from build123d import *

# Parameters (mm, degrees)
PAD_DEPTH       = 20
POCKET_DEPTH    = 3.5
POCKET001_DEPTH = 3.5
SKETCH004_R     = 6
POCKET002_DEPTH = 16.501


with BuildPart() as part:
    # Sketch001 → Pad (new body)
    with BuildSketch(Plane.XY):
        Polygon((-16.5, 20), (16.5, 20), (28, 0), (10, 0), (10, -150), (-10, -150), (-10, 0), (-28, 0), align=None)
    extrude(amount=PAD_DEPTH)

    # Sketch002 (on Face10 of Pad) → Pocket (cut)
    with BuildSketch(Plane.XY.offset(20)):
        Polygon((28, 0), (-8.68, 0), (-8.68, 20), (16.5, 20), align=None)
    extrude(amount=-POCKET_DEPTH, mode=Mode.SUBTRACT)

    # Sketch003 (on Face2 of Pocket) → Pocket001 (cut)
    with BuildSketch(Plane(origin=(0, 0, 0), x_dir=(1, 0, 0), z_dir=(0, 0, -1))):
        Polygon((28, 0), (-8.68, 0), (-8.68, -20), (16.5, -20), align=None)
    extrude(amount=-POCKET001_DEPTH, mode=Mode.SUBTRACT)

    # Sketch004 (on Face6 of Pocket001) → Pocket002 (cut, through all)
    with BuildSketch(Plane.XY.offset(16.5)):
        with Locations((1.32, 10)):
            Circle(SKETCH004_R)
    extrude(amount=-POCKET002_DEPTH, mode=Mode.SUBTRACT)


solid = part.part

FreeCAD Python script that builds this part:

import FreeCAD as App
import Part
import Sketcher

V = App.Vector


def add_polygon(sketch, points):
    """Adds a closed chain of lines whose ends are joined by coincident constraints."""
    first, n = sketch.GeometryCount, len(points)
    for a, b in zip(points, points[1:] + points[:1]):
        sketch.addGeometry(Part.LineSegment(App.Vector(*a, 0), App.Vector(*b, 0)), False)
    for i in range(n):
        sketch.addConstraint(Sketcher.Constraint("Coincident", first + i, 2, first + (i + 1) % n, 1))

doc = App.newDocument("Part")
body = doc.addObject("PartDesign::Body", "Body")

# Sketch on XY plane
sketch1 = body.newObject("Sketcher::SketchObject", "Sketch")
sketch1.AttachmentSupport = (doc.getObject("XY_Plane"), [""])
sketch1.MapMode = "FlatFace"
add_polygon(sketch1, [(16, 20), (-16, 20), (-28, 0), (-10, 0), (-10, -150), (10, -150), (10, 0), (28, 0)])  # lines 0-7
sketch1.addConstraint([
    Sketcher.Constraint("Horizontal", 0),
    Sketcher.Constraint("Horizontal", 2),
    Sketcher.Constraint("Vertical", 3),
    Sketcher.Constraint("Horizontal", 4),
    Sketcher.Constraint("Vertical", 5),
    Sketcher.Constraint("Horizontal", 6),
    Sketcher.Constraint("Symmetric", 2, 2, 5, 2, -1, 1),
    Sketcher.Constraint("Symmetric", 1, 2, 6, 2, -2),
    Sketcher.Constraint("Equal", 1, 7),
    Sketcher.Constraint("DistanceX", 0, 2, 0, 1, 33.0),
    Sketcher.Constraint("DistanceX", 2, 1, 2, 2, 18.0),
    Sketcher.Constraint("DistanceX", 4, 1, 4, 2, 20.0),
    Sketcher.Constraint("DistanceY", 3, 2, 3, 1, 150.0),
    Sketcher.Constraint("DistanceY", -1, 1, 0, 2, 20.0),
])
pad1 = body.newObject("PartDesign::Pad", "Pad")
pad1.Profile = sketch1
pad1.Length = 20

# Sketch on XY plane
sketch2 = body.newObject("Sketcher::SketchObject", "Sketch001")
sketch2.AttachmentSupport = (doc.getObject("XY_Plane"), [""])
sketch2.MapMode = "FlatFace"
sketch2.AttachmentOffset = App.Placement(V(0, 0, 20), App.Rotation())
add_polygon(sketch2, [(-9, 0), (28, 0), (16, 20), (-9, 20)])  # lines 0-3
sketch2.addConstraint([
    Sketcher.Constraint("Horizontal", 0),
    Sketcher.Constraint("Horizontal", 2),
    Sketcher.Constraint("Vertical", 3),
    Sketcher.Constraint("PointOnObject", 0, 2, -1),
    Sketcher.Constraint("DistanceY", 3, 2, 3, 1, 20.0),
    Sketcher.Constraint("DistanceX", -1, 1, 0, 2, 28.0),
    Sketcher.Constraint("DistanceX", 0, 1, 0, 2, 36.68),
    Sketcher.Constraint("DistanceX", 2, 2, 2, 1, 25.18),
])
pocket1 = body.newObject("PartDesign::Pocket", "Pocket")
pocket1.Profile = sketch2
pocket1.Length = 3.5

# Sketch on XY plane
sketch3 = body.newObject("Sketcher::SketchObject", "Sketch002")
sketch3.AttachmentSupport = (doc.getObject("XY_Plane"), [""])
sketch3.MapMode = "FlatFace"
add_polygon(sketch3, [(28, 0), (-9, 0), (-9, 20), (16, 20)])  # lines 0-3
sketch3.addConstraint([
    Sketcher.Constraint("Horizontal", 0),
    Sketcher.Constraint("Vertical", 1),
    Sketcher.Constraint("Horizontal", 2),
    Sketcher.Constraint("PointOnObject", 0, 2, -1),
    Sketcher.Constraint("DistanceY", 1, 1, 1, 2, 20.0),
    Sketcher.Constraint("DistanceX", -1, 1, 3, 2, 28.0),
    Sketcher.Constraint("DistanceX", 0, 2, 0, 1, 36.68),
    Sketcher.Constraint("DistanceX", 2, 1, 2, 2, 25.18),
])
pocket2 = body.newObject("PartDesign::Pocket", "Pocket001")
pocket2.Profile = sketch3
pocket2.Length = 3.5
pocket2.Reversed = True

# Sketch on XY plane
sketch4 = body.newObject("Sketcher::SketchObject", "Sketch003")
sketch4.AttachmentSupport = (doc.getObject("XY_Plane"), [""])
sketch4.MapMode = "FlatFace"
sketch4.AttachmentOffset = App.Placement(V(0, 0, 16.5), App.Rotation())
sketch4.addGeometry(Part.Circle(V(1, 10, 0), V(0, 0, 1), 6), False)
sketch4.addConstraint([
    Sketcher.Constraint("Diameter", 0, 12.0),
    Sketcher.Constraint("DistanceY", -1, 1, 0, 3, 10.0),
    Sketcher.Constraint("DistanceX", -1, 1, 0, 3, 1.32),
])
pocket3 = body.newObject("PartDesign::Pocket", "Pocket002")
pocket3.Profile = sketch4
pocket3.Type = "ThroughAll"

doc.recompute()
